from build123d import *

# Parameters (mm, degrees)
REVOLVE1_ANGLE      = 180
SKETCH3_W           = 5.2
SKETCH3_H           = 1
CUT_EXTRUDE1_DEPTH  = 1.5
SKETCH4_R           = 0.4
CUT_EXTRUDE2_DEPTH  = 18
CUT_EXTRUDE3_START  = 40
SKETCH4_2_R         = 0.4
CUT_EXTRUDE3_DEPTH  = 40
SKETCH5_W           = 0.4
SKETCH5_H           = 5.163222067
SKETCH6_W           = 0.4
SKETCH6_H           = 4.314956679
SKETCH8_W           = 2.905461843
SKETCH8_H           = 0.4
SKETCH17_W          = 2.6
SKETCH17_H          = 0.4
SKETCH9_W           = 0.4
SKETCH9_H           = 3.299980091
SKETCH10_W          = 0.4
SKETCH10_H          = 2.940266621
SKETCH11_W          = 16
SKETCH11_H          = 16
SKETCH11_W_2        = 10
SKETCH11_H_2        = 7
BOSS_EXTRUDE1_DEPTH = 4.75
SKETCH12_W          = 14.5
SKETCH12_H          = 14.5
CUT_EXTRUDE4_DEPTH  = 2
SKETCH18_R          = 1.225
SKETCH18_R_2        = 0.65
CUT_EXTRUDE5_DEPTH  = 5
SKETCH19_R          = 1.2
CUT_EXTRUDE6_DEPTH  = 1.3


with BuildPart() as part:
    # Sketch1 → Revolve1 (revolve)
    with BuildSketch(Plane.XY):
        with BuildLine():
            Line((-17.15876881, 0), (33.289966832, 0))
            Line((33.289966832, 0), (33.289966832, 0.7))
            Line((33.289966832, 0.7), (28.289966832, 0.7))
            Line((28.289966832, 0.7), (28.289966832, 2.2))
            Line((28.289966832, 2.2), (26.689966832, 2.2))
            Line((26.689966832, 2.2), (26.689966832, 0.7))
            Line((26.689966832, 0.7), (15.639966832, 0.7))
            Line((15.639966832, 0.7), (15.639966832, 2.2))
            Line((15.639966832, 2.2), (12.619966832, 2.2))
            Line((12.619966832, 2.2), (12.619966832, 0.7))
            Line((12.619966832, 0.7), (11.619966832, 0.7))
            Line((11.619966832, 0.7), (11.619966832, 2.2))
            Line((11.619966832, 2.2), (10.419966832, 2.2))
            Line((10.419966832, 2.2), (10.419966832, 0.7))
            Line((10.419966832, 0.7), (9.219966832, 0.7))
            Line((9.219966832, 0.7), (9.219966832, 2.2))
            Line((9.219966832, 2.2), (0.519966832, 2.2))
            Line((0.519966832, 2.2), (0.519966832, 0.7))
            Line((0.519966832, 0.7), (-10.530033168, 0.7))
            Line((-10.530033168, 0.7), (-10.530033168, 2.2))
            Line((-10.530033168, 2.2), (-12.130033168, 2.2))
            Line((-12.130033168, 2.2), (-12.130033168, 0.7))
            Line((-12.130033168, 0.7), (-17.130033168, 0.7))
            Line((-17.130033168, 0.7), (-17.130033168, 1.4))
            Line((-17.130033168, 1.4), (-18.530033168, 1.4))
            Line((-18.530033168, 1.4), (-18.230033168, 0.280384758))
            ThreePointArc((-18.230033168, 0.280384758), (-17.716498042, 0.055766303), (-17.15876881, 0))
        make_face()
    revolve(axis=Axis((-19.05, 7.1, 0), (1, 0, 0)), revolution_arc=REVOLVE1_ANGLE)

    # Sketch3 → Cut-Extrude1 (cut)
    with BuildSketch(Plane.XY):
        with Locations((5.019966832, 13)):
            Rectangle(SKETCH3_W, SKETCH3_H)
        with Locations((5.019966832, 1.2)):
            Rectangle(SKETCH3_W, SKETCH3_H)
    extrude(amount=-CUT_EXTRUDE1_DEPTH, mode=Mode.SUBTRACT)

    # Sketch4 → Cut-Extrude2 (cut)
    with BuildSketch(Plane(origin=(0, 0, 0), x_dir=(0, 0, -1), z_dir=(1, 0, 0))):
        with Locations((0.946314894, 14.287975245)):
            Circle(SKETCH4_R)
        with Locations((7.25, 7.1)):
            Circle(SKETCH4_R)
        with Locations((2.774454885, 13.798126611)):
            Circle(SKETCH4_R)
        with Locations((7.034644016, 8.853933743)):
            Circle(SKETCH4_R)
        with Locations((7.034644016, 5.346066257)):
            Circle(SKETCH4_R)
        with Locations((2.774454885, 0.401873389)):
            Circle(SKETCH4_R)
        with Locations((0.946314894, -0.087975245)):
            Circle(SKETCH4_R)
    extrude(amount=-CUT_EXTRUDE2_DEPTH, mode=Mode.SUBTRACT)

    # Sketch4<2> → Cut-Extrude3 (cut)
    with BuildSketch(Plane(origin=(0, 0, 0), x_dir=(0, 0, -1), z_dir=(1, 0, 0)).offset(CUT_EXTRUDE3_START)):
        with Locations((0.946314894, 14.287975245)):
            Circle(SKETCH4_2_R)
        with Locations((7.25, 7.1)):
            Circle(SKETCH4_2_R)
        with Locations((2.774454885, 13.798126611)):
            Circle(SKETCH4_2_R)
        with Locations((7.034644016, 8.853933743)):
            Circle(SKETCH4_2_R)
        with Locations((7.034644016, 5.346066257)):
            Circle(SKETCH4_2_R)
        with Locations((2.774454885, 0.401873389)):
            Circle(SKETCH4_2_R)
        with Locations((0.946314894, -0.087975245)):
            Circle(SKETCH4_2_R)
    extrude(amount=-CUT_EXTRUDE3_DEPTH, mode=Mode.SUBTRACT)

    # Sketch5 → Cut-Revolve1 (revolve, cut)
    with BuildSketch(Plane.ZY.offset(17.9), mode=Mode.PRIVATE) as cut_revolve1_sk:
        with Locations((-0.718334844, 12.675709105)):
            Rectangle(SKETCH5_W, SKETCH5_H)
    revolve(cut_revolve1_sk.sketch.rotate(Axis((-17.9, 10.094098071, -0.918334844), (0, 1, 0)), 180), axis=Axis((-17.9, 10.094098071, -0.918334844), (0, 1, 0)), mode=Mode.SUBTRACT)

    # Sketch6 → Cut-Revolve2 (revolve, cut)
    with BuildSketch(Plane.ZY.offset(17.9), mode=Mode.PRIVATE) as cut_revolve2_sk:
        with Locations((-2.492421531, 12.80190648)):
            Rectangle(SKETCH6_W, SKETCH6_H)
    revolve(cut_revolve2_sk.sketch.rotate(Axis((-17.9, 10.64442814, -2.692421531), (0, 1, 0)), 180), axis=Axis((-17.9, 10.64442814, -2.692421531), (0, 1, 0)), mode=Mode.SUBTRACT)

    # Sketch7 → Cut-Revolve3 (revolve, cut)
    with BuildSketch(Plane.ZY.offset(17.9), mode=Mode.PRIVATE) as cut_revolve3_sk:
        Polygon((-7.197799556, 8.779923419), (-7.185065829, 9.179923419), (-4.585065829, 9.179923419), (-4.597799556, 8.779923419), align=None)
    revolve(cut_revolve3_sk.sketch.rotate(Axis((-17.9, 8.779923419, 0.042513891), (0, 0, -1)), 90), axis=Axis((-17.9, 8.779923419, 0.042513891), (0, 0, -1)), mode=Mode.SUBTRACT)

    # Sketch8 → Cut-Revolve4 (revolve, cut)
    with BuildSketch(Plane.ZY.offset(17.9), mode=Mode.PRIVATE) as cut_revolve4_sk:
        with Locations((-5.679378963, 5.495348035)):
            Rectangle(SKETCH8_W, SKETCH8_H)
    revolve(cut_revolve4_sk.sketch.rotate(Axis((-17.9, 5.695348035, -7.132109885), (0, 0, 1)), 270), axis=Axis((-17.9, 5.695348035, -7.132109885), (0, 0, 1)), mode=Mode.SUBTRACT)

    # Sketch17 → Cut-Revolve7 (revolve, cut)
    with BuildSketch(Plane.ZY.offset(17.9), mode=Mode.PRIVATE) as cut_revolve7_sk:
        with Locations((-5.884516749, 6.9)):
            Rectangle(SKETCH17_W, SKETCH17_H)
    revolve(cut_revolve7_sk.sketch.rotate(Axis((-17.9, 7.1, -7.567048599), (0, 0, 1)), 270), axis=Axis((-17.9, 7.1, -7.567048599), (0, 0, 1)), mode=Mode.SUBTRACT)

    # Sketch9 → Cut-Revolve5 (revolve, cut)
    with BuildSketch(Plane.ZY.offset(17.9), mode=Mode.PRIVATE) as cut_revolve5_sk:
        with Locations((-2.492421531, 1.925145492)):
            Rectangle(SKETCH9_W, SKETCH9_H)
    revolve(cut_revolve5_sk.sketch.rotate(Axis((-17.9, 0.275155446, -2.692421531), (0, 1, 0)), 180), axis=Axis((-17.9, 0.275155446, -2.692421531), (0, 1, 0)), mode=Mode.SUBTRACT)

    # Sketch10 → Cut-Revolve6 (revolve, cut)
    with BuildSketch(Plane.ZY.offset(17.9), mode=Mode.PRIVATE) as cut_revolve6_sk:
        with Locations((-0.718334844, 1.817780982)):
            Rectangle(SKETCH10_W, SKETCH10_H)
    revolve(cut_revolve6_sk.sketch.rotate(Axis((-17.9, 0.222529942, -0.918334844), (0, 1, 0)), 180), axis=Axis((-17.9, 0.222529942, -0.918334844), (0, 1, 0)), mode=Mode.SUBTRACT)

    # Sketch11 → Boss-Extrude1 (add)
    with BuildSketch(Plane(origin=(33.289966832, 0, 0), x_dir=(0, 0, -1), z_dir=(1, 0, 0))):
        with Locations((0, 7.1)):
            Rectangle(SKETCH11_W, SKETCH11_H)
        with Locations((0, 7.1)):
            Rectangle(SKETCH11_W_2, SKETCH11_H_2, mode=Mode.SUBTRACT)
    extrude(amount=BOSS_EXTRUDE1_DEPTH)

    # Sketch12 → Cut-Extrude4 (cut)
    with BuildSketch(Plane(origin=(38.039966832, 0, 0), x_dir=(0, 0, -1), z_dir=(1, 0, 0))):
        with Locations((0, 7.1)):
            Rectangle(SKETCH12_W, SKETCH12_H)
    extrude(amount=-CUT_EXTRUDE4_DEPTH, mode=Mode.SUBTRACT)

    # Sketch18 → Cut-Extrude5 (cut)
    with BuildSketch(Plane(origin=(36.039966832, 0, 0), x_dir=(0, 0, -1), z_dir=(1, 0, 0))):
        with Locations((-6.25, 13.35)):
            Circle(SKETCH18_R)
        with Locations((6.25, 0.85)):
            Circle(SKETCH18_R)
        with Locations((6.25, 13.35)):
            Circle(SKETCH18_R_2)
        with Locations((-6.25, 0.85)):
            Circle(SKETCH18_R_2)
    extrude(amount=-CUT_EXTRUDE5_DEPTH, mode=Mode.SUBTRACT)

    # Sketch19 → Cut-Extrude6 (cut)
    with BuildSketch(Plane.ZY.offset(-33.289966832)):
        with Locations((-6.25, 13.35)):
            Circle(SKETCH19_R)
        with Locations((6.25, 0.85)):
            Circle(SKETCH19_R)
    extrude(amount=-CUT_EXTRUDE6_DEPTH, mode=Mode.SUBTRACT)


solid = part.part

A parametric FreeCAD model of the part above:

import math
import FreeCAD as App
import Part
import Sketcher
Q = App.Units.Quantity

doc = App.newDocument("Part")
body = doc.addObject("PartDesign::Body", "Body")

sketch1 = body.newObject("Sketcher::SketchObject", "Sketch")
sketch1.AttachmentSupport = (doc.getObject("XY_Plane"), [""])
sketch1.MapMode = "FlatFace"
sketch1.addGeometry([
    Part.LineSegment(App.Vector(-17.2, 0, 0), App.Vector(33.3, 0, 0)),
    Part.LineSegment(App.Vector(33.3, 0, 0), App.Vector(33.3, 0.7, 0)),
    Part.LineSegment(App.Vector(33.3, 0.7, 0), App.Vector(28.3, 0.7, 0)),
    Part.LineSegment(App.Vector(28.3, 0.7, 0), App.Vector(28.3, 2.2, 0)),
    Part.LineSegment(App.Vector(28.3, 2.2, 0), App.Vector(26.7, 2.2, 0)),
    Part.LineSegment(App.Vector(26.7, 2.2, 0), App.Vector(26.7, 0.7, 0)),
    Part.LineSegment(App.Vector(26.7, 0.7, 0), App.Vector(15.6, 0.7, 0)),
    Part.LineSegment(App.Vector(15.6, 0.7, 0), App.Vector(15.6, 2.2, 0)),
    Part.LineSegment(App.Vector(15.6, 2.2, 0), App.Vector(12.6, 2.2, 0)),
    Part.LineSegment(App.Vector(12.6, 2.2, 0), App.Vector(12.6, 0.7, 0)),
    Part.LineSegment(App.Vector(12.6, 0.7, 0), App.Vector(11.6, 0.7, 0)),
    Part.LineSegment(App.Vector(11.6, 0.7, 0), App.Vector(11.6, 2.2, 0)),
    Part.LineSegment(App.Vector(11.6, 2.2, 0), App.Vector(10.4, 2.2, 0)),
    Part.LineSegment(App.Vector(10.4, 2.2, 0), App.Vector(10.4, 0.7, 0)),
    Part.LineSegment(App.Vector(10.4, 0.7, 0), App.Vector(9.2, 0.7, 0)),
    Part.LineSegment(App.Vector(9.2, 0.7, 0), App.Vector(9.2, 2.2, 0)),
    Part.LineSegment(App.Vector(9.2, 2.2, 0), App.Vector(0.5, 2.2, 0)),
    Part.LineSegment(App.Vector(0.5, 2.2, 0), App.Vector(0.5, 0.7, 0)),
    Part.LineSegment(App.Vector(0.5, 0.7, 0), App.Vector(-10.5, 0.7, 0)),
    Part.LineSegment(App.Vector(-10.5, 0.7, 0), App.Vector(-10.5, 2.2, 0)),
    Part.LineSegment(App.Vector(-10.5, 2.2, 0), App.Vector(-12.1, 2.2, 0)),
    Part.LineSegment(App.Vector(-12.1, 2.2, 0), App.Vector(-12.1, 0.7, 0)),
    Part.LineSegment(App.Vector(-12.1, 0.7, 0), App.Vector(-17.1, 0.7, 0)),
    Part.LineSegment(App.Vector(-17.1, 0.7, 0), App.Vector(-17.1, 1.4, 0)),
    Part.LineSegment(App.Vector(-17.1, 1.4, 0), App.Vector(-18.5, 1.4, 0)),
    Part.LineSegment(App.Vector(-18.5, 1.4, 0), App.Vector(-18.2, 0.3, 0)),
    Part.ArcOfCircle(Part.Circle(App.Vector(-17.3, 1.8, 0), App.Vector(0, 0, 1), 1.8), math.radians(-123), math.radians(-87)),
], False)
sketch1.addGeometry(Part.LineSegment(App.Vector(-18.5, 7.1, 0), App.Vector(33.3, 7.1, 0)), True)
sketch1.addConstraint([
    Sketcher.Constraint("Coincident", 0, 2, 1, 1),
    Sketcher.Constraint("Coincident", 1, 2, 2, 1),
    Sketcher.Constraint("Coincident", 2, 2, 3, 1),
    Sketcher.Constraint("Coincident", 3, 2, 4, 1),
    Sketcher.Constraint("Coincident", 4, 2, 5, 1),
    Sketcher.Constraint("Coincident", 5, 2, 6, 1),
    Sketcher.Constraint("Coincident", 6, 2, 7, 1),
    Sketcher.Constraint("Coincident", 7, 2, 8, 1),
    Sketcher.Constraint("Coincident", 8, 2, 9, 1),
    Sketcher.Constraint("Coincident", 9, 2, 10, 1),
    Sketcher.Constraint("Coincident", 10, 2, 11, 1),
    Sketcher.Constraint("Coincident", 11, 2, 12, 1),
    Sketcher.Constraint("Coincident", 12, 2, 13, 1),
    Sketcher.Constraint("Coincident", 13, 2, 14, 1),
    Sketcher.Constraint("Coincident", 14, 2, 15, 1),
    Sketcher.Constraint("Coincident", 15, 2, 16, 1),
    Sketcher.Constraint("Coincident", 16, 2, 17, 1),
    Sketcher.Constraint("Coincident", 17, 2, 18, 1),
    Sketcher.Constraint("Coincident", 18, 2, 19, 1),
    Sketcher.Constraint("Coincident", 19, 2, 20, 1),
    Sketcher.Constraint("Coincident", 20, 2, 21, 1),
    Sketcher.Constraint("Coincident", 21, 2, 22, 1),
    Sketcher.Constraint("Coincident", 22, 2, 23, 1),
    Sketcher.Constraint("Coincident", 23, 2, 24, 1),
    Sketcher.Constraint("Coincident", 24, 2, 25, 1),
    Sketcher.Constraint("Coincident", 25, 2, 26, 1),
    Sketcher.Constraint("Coincident", 26, 2, 0, 1),
    Sketcher.Constraint("Horizontal", 0),
    Sketcher.Constraint("Vertical", 1),
    Sketcher.Constraint("Horizontal", 2),
    Sketcher.Constraint("Vertical", 3),
    Sketcher.Constraint("Horizontal", 4),
    Sketcher.Constraint("Vertical", 5),
    Sketcher.Constraint("Horizontal", 6),
    Sketcher.Constraint("Vertical", 7),
    Sketcher.Constraint("Horizontal", 8),
    Sketcher.Constraint("Vertical", 9),
    Sketcher.Constraint("Horizontal", 10),
    Sketcher.Constraint("Vertical", 11),
    Sketcher.Constraint("Horizontal", 12),
    Sketcher.Constraint("Vertical", 13),
    Sketcher.Constraint("Horizontal", 14),
    Sketcher.Constraint("Vertical", 15),
    Sketcher.Constraint("Horizontal", 16),
    Sketcher.Constraint("Vertical", 17),
    Sketcher.Constraint("Horizontal", 18),
    Sketcher.Constraint("Vertical", 19),
    Sketcher.Constraint("Horizontal", 20),
    Sketcher.Constraint("Vertical", 21),
    Sketcher.Constraint("Horizontal", 22),
    Sketcher.Constraint("Vertical", 23),
    Sketcher.Constraint("Horizontal", 24),
    Sketcher.Constraint("Horizontal", 27),
    Sketcher.Constraint("PointOnObject", 0, 2, -1),
    Sketcher.Constraint("Horizontal", 2, 2, 5, 2),
    Sketcher.Constraint("Horizontal", 4, 2, 7, 2),
    Sketcher.Constraint("Horizontal", 6, 2, 9, 2),
    Sketcher.Constraint("Horizontal", 8, 2, 11, 2),
    Sketcher.Constraint("Horizontal", 10, 2, 13, 2),
    Sketcher.Constraint("Horizontal", 12, 2, 15, 2),
    Sketcher.Constraint("Horizontal", 14, 2, 17, 2),
    Sketcher.Constraint("Horizontal", 16, 2, 19, 2),
    Sketcher.Constraint("Horizontal", 18, 2, 21, 2),
    Sketcher.Constraint("Vertical", 24, 2, 27, 1),
    Sketcher.Constraint("Vertical", 1, 2, 27, 2),
    Sketcher.Constraint("Equal", 12, 14),
    Sketcher.Constraint("Equal", 6, 18),
    Sketcher.Constraint("Equal", 4, 20),
    Sketcher.Constraint("Equal", 2, 22),
    Sketcher.Constraint("Equal", 1, 23),
    Sketcher.Constraint("Radius", 26, 1.8),
    Sketcher.Constraint("DistanceX", 2, 2, 2, 1, 5.0),
    Sketcher.Constraint("DistanceX", 10, 2, 10, 1, 1.0),
    Sketcher.Constraint("Angle", 25, Q("-75 deg")),
    Sketcher.Constraint("DistanceX", 4, 2, 4, 1, 1.6),
    Sketcher.Constraint("DistanceX", 12, 2, 12, 1, 1.2),
    Sketcher.Constraint("DistanceX", 16, 2, 16, 1, 8.7),
    Sketcher.Constraint("DistanceX", 24, 2, 24, 1, 1.4),
    Sketcher.Constraint("DistanceY", 1, 1, 1, 2, 0.7),
    Sketcher.Constraint("DistanceY", 3, 1, 3, 2, 1.5),
    Sketcher.Constraint("DistanceX", 6, 2, 6, 1, 11.05),
    Sketcher.Constraint("DistanceX", 8, 2, 8, 1, 3.02),
    Sketcher.Constraint("DistanceY", -1, 1, 27, 1, 7.1),
    Sketcher.Constraint("DistanceX", 24, 2, 25, 2, 0.3),
    Sketcher.Constraint("DistanceX", 26, 3, 0, 2, 50.550699),
    Sketcher.Constraint("DistanceX", 26, 3, -1, 1, 17.260732),
])
revolution = body.newObject("PartDesign::Revolution", "Revolution")
revolution.Profile = sketch1
revolution.ReferenceAxis = (sketch1, ["Axis0"])
revolution.Angle = 180

sketch2 = body.newObject("Sketcher::SketchObject", "Sketch001")
sketch2.AttachmentSupport = (doc.getObject("XY_Plane"), [""])
sketch2.MapMode = "FlatFace"
sketch2.addGeometry([
    Part.LineSegment(App.Vector(2.4, 13.5, 0), App.Vector(2.4, 12.5, 0)),
    Part.LineSegment(App.Vector(2.4, 12.5, 0), App.Vector(7.6, 12.5, 0)),
    Part.LineSegment(App.Vector(7.6, 12.5, 0), App.Vector(7.6, 13.5, 0)),
    Part.LineSegment(App.Vector(7.6, 13.5, 0), App.Vector(2.4, 13.5, 0)),
    Part.LineSegment(App.Vector(2.4, 1.7, 0), App.Vector(2.4, 0.7, 0)),
    Part.LineSegment(App.Vector(2.4, 0.7, 0), App.Vector(7.6, 0.7, 0)),
    Part.LineSegment(App.Vector(7.6, 0.7, 0), App.Vector(7.6, 1.7, 0)),
    Part.LineSegment(App.Vector(7.6, 1.7, 0), App.Vector(2.4, 1.7, 0)),
], False)
sketch2.addConstraint([
    Sketcher.Constraint("Coincident", 0, 2, 1, 1),
    Sketcher.Constraint("Coincident", 1, 2, 2, 1),
    Sketcher.Constraint("Coincident", 2, 2, 3, 1),
    Sketcher.Constraint("Coincident", 3, 2, 0, 1),
    Sketcher.Constraint("Coincident", 4, 2, 5, 1),
    Sketcher.Constraint("Coincident", 5, 2, 6, 1),
    Sketcher.Constraint("Coincident", 6, 2, 7, 1),
    Sketcher.Constraint("Coincident", 7, 2, 4, 1),
    Sketcher.Constraint("Vertical", 0),
    Sketcher.Constraint("Horizontal", 1),
    Sketcher.Constraint("Vertical", 2),
    Sketcher.Constraint("Horizontal", 3),
    Sketcher.Constraint("Vertical", 4),
    Sketcher.Constraint("Horizontal", 5),
    Sketcher.Constraint("Vertical", 6),
    Sketcher.Constraint("Horizontal", 7),
    Sketcher.Constraint("Vertical", 3, 2, 4, 2),
    Sketcher.Constraint("Vertical", 2, 2, 5, 2),
    Sketcher.Constraint("Equal", 2, 4),
    Sketcher.Constraint("DistanceY", 0, 2, 0, 1, 1.0),
    Sketcher.Constraint("DistanceX", 1, 1, 1, 2, 5.2),
    Sketcher.Constraint("DistanceY", -1, 1, 0, 2, 12.5),
    Sketcher.Constraint("DistanceY", -1, 1, 4, 2, 0.7),
    Sketcher.Constraint("DistanceX", -1, 1, 0, 2, 2.419967),
])
pocket1 = body.newObject("PartDesign::Pocket", "Pocket")
pocket1.Profile = sketch2
pocket1.Length = 1.5

sketch3 = body.newObject("Sketcher::SketchObject", "Sketch002")
sketch3.AttachmentSupport = (doc.getObject("YZ_Plane"), [""])
sketch3.MapMode = "FlatFace"
sketch3.addGeometry([
    Part.Circle(App.Vector(14.29, -0.95, 0), App.Vector(0, 0, 1), 0.4),
    Part.Circle(App.Vector(7.1, -7.25, 0), App.Vector(0, 0, 1), 0.4),
    Part.Circle(App.Vector(13.8, -2.77, 0), App.Vector(0, 0, 1), 0.4),
    Part.Circle(App.Vector(8.85, -7.03, 0), App.Vector(0, 0, 1), 0.4),
    Part.Circle(App.Vector(5.35, -7.03, 0), App.Vector(0, 0, 1), 0.4),
    Part.Circle(App.Vector(0.4, -2.77, 0), App.Vector(0, 0, 1), 0.4),
    Part.Circle(App.Vector(-0.09, -0.95, 0), App.Vector(0, 0, 1), 0.4),
], False)
sketch3.addConstraint([
    Sketcher.Constraint("Equal", 0, 1),
    Sketcher.Constraint("Equal", 1, 2),
    Sketcher.Constraint("Equal", 2, 3),
    Sketcher.Constraint("Equal", 3, 4),
    Sketcher.Constraint("Equal", 4, 5),
    Sketcher.Constraint("Equal", 5, 6),
    Sketcher.Constraint("Horizontal", 3, 3, 4, 3),
    Sketcher.Constraint("Horizontal", 2, 3, 5, 3),
    Sketcher.Constraint("Horizontal", 0, 3, 6, 3),
    Sketcher.Constraint("Diameter", 0, 0.8),
    Sketcher.Constraint("DistanceX", -1, 1, 1, 3, 7.1),
    Sketcher.Constraint("DistanceY", 1, 3, -1, 1, 7.25),
    Sketcher.Constraint("DistanceX", 5, 3, 0, 3, 13.886102),
    Sketcher.Constraint("DistanceX", 6, 3, 2, 3, 13.886102),
    Sketcher.Constraint("DistanceX", 2, 3, 0, 3, 0.489849),
    Sketcher.Constraint("DistanceY", 2, 3, 0, 3, 1.82814),
    Sketcher.Constraint("DistanceY", 3, 3, 2, 3, 4.260189),
    Sketcher.Constraint("DistanceX", 3, 3, 0, 3, 5.434042),
    Sketcher.Constraint("DistanceX", 4, 3, 2, 3, 8.45206),
    Sketcher.Constraint("DistanceX", -1, 1, 0, 3, 14.287975),
    Sketcher.Constraint("DistanceY", 0, 3, -1, 1, 0.946315),
])
pocket2 = body.newObject("PartDesign::Pocket", "Pocket001")
pocket2.Profile = sketch3
pocket2.Length = 18

sketch4 = body.newObject("Sketcher::SketchObject", "Sketch003")
sketch4.AttachmentSupport = (doc.getObject("YZ_Plane"), [""])
sketch4.MapMode = "FlatFace"
sketch4.AttachmentOffset = App.Placement(App.Vector(0, 0, 40), App.Rotation())
sketch4.addGeometry([
    Part.Circle(App.Vector(14.29, -0.95, 0), App.Vector(0, 0, 1), 0.4),
    Part.Circle(App.Vector(7.1, -7.25, 0), App.Vector(0, 0, 1), 0.4),
    Part.Circle(App.Vector(13.8, -2.77, 0), App.Vector(0, 0, 1), 0.4),
    Part.Circle(App.Vector(8.85, -7.03, 0), App.Vector(0, 0, 1), 0.4),
    Part.Circle(App.Vector(5.35, -7.03, 0), App.Vector(0, 0, 1), 0.4),
    Part.Circle(App.Vector(0.4, -2.77, 0), App.Vector(0, 0, 1), 0.4),
    Part.Circle(App.Vector(-0.09, -0.95, 0), App.Vector(0, 0, 1), 0.4),
], False)
sketch4.addConstraint([
    Sketcher.Constraint("Equal", 0, 1),
    Sketcher.Constraint("Equal", 1, 2),
    Sketcher.Constraint("Equal", 2, 3),
    Sketcher.Constraint("Equal", 3, 4),
    Sketcher.Constraint("Equal", 4, 5),
    Sketcher.Constraint("Equal", 5, 6),
    Sketcher.Constraint("Horizontal", 3, 3, 4, 3),
    Sketcher.Constraint("Horizontal", 2, 3, 5, 3),
    Sketcher.Constraint("Horizontal", 0, 3, 6, 3),
    Sketcher.Constraint("Diameter", 0, 0.8),
    Sketcher.Constraint("DistanceX", -1, 1, 1, 3, 7.1),
    Sketcher.Constraint("DistanceY", 1, 3, -1, 1, 7.25),
    Sketcher.Constraint("DistanceX", 5, 3, 0, 3, 13.886102),
    Sketcher.Constraint("DistanceX", 6, 3, 2, 3, 13.886102),
    Sketcher.Constraint("DistanceX", 2, 3, 0, 3, 0.489849),
    Sketcher.Constraint("DistanceY", 2, 3, 0, 3, 1.82814),
    Sketcher.Constraint("DistanceY", 3, 3, 2, 3, 4.260189),
    Sketcher.Constraint("DistanceX", 3, 3, 0, 3, 5.434042),
    Sketcher.Constraint("DistanceX", 4, 3, 2, 3, 8.45206),
    Sketcher.Constraint("DistanceX", -1, 1, 0, 3, 14.287975),
    Sketcher.Constraint("DistanceY", 0, 3, -1, 1, 0.946315),
])
pocket3 = body.newObject("PartDesign::Pocket", "Pocket002")
pocket3.Profile = sketch4
pocket3.Length = 40

sketch5 = body.newObject("Sketcher::SketchObject", "Sketch004")
sketch5.AttachmentSupport = (doc.getObject("YZ_Plane"), [""])
sketch5.MapMode = "FlatFace"
sketch5.AttachmentOffset = App.Placement(App.Vector(0, 0, -17.9), App.Rotation())
sketch5.addGeometry([
    Part.LineSegment(App.Vector(15.26, -0.92, 0), App.Vector(10.09, -0.92, 0)),
    Part.LineSegment(App.Vector(10.09, -0.92, 0), App.Vector(10.09, -0.52, 0)),
    Part.LineSegment(App.Vector(10.09, -0.52, 0), App.Vector(15.26, -0.52, 0)),
    Part.LineSegment(App.Vector(15.26, -0.52, 0), App.Vector(15.26, -0.92, 0)),
], False)
sketch5.addGeometry(Part.LineSegment(App.Vector(10.09, -0.92, 0), App.Vector(15.26, -0.92, 0)), True)
sketch5.addConstraint([
    Sketcher.Constraint("Coincident", 0, 2, 1, 1),
    Sketcher.Constraint("Coincident", 1, 2, 2, 1),
    Sketcher.Constraint("Coincident", 2, 2, 3, 1),
    Sketcher.Constraint("Coincident", 3, 2, 0, 1),
    Sketcher.Constraint("Horizontal", 0),
    Sketcher.Constraint("Vertical", 1),
    Sketcher.Constraint("Horizontal", 2),
    Sketcher.Constraint("Vertical", 3),
    Sketcher.Constraint("Horizontal", 4),
    Sketcher.Constraint("Coincident", 4, 1, 0, 2),
    Sketcher.Constraint("Vertical", 2, 2, 4, 2),
    Sketcher.Constraint("DistanceY", 1, 1, 1, 2, 0.4),
    Sketcher.Constraint("DistanceX", -1, 1, 0, 2, 10.094098),
    Sketcher.Constraint("DistanceX", 0, 2, 0, 1, 5.163222),
    Sketcher.Constraint("DistanceY", 0, 2, -1, 1, 0.918335),
])
groove = body.newObject("PartDesign::Groove", "Groove")
groove.Profile = sketch5
groove.ReferenceAxis = (sketch5, ["Axis0"])
groove.Angle = 360

sketch6 = body.newObject("Sketcher::SketchObject", "Sketch005")
sketch6.AttachmentSupport = (doc.getObject("YZ_Plane"), [""])
sketch6.MapMode = "FlatFace"
sketch6.AttachmentOffset = App.Placement(App.Vector(0, 0, -17.9), App.Rotation())
sketch6.addGeometry([
    Part.LineSegment(App.Vector(14.96, -2.69, 0), App.Vector(10.64, -2.69, 0)),
    Part.LineSegment(App.Vector(10.64, -2.69, 0), App.Vector(10.64, -2.29, 0)),
    Part.LineSegment(App.Vector(10.64, -2.29, 0), App.Vector(14.96, -2.29, 0)),
    Part.LineSegment(App.Vector(14.96, -2.29, 0), App.Vector(14.96, -2.69, 0)),
], False)
sketch6.addGeometry(Part.LineSegment(App.Vector(10.64, -2.69, 0), App.Vector(14.96, -2.69, 0)), True)
sketch6.addConstraint([
    Sketcher.Constraint("Coincident", 0, 2, 1, 1),
    Sketcher.Constraint("Coincident", 1, 2, 2, 1),
    Sketcher.Constraint("Coincident", 2, 2, 3, 1),
    Sketcher.Constraint("Coincident", 3, 2, 0, 1),
    Sketcher.Constraint("Horizontal", 0),
    Sketcher.Constraint("Vertical", 1),
    Sketcher.Constraint("Horizontal", 2),
    Sketcher.Constraint("Vertical", 3),
    Sketcher.Constraint("Horizontal", 4),
    Sketcher.Constraint("Coincident", 4, 1, 0, 2),
    Sketcher.Constraint("Vertical", 2, 2, 4, 2),
    Sketcher.Constraint("DistanceY", 1, 1, 1, 2, 0.4),
    Sketcher.Constraint("DistanceX", 0, 2, 0, 1, 4.314957),
    Sketcher.Constraint("DistanceX", -1, 1, 0, 2, 10.644428),
    Sketcher.Constraint("DistanceY", 0, 2, -1, 1, 2.692422),
])
groove2 = body.newObject("PartDesign::Groove", "Groove001")
groove2.Profile = sketch6
groove2.ReferenceAxis = (sketch6, ["Axis0"])
groove2.Angle = 360

sketch7 = body.newObject("Sketcher::SketchObject", "Sketch006")
sketch7.AttachmentSupport = (doc.getObject("YZ_Plane"), [""])
sketch7.MapMode = "FlatFace"
sketch7.AttachmentOffset = App.Placement(App.Vector(0, 0, -17.9), App.Rotation())
sketch7.addGeometry([
    Part.LineSegment(App.Vector(9.18, -7.19, 0), App.Vector(8.78, -7.2, 0)),
    Part.LineSegment(App.Vector(8.78, -7.2, 0), App.Vector(8.78, -4.6, 0)),
    Part.LineSegment(App.Vector(8.78, -4.6, 0), App.Vector(9.18, -4.59, 0)),
    Part.LineSegment(App.Vector(9.18, -4.59, 0), App.Vector(9.18, -7.19, 0)),
], False)
sketch7.addGeometry(Part.LineSegment(App.Vector(8.78, -4.59, 0), App.Vector(8.78, -7.2, 0)), True)
sketch7.addConstraint([
    Sketcher.Constraint("Coincident", 0, 2, 1, 1),
    Sketcher.Constraint("Coincident", 1, 2, 2, 1),
    Sketcher.Constraint("Coincident", 2, 2, 3, 1),
    Sketcher.Constraint("Coincident", 3, 2, 0, 1),
    Sketcher.Constraint("Vertical", 1),
    Sketcher.Constraint("Vertical", 3),
    Sketcher.Constraint("Vertical", 4),
    Sketcher.Constraint("Coincident", 4, 2, 0, 2),
    Sketcher.Constraint("Parallel", 0, 2),
    Sketcher.Constraint("Horizontal", 2, 2, 4, 1),
    Sketcher.Constraint("DistanceY", 1, 1, 1, 2, 2.6),
    Sketcher.Constraint("DistanceX", 1, 2, 2, 2, 0.4),
    Sketcher.Constraint("DistanceY", 0, 2, -1, 1, 7.1978),
    Sketcher.Constraint("DistanceY", 4, 2, 4, 1, 2.612734),
    Sketcher.Constraint("DistanceX", -1, 1, 0, 2, 8.779923),
])
groove3 = body.newObject("PartDesign::Groove", "Groove002")
groove3.Profile = sketch7
groove3.ReferenceAxis = (sketch7, ["Axis0"])
groove3.Angle = 360

sketch8 = body.newObject("Sketcher::SketchObject", "Sketch007")
sketch8.AttachmentSupport = (doc.getObject("YZ_Plane"), [""])
sketch8.MapMode = "FlatFace"
sketch8.AttachmentOffset = App.Placement(App.Vector(0, 0, -17.9), App.Rotation())
sketch8.addGeometry([
    Part.LineSegment(App.Vector(5.7, -7.13, 0), App.Vector(5.3, -7.13, 0)),
    Part.LineSegment(App.Vector(5.3, -7.13, 0), App.Vector(5.3, -4.23, 0)),
    Part.LineSegment(App.Vector(5.3, -4.23, 0), App.Vector(5.7, -4.23, 0)),
    Part.LineSegment(App.Vector(5.7, -4.23, 0), App.Vector(5.7, -7.13, 0)),
], False)
sketch8.addGeometry(Part.LineSegment(App.Vector(5.7, -7.13, 0), App.Vector(5.7, -4.23, 0)), True)
sketch8.addConstraint([
    Sketcher.Constraint("Coincident", 0, 2, 1, 1),
    Sketcher.Constraint("Coincident", 1, 2, 2, 1),
    Sketcher.Constraint("Coincident", 2, 2, 3, 1),
    Sketcher.Constraint("Coincident", 3, 2, 0, 1),
    Sketcher.Constraint("Horizontal", 0),
    Sketcher.Constraint("Vertical", 1),
    Sketcher.Constraint("Horizontal", 2),
    Sketcher.Constraint("Vertical", 3),
    Sketcher.Constraint("Vertical", 4),
    Sketcher.Constraint("Coincident", 4, 1, 3, 2),
    Sketcher.Constraint("Horizontal", 1, 2, 4, 2),
    Sketcher.Constraint("DistanceX", 0, 2, 0, 1, 0.4),
    Sketcher.Constraint("DistanceY", 1, 1, 1, 2, 2.905462),
    Sketcher.Constraint("DistanceX", -1, 1, 0, 2, 5.295348),
    Sketcher.Constraint("DistanceY", 0, 2, -1, 1, 7.13211),
])
groove4 = body.newObject("PartDesign::Groove", "Groove003")
groove4.Profile = sketch8
groove4.ReferenceAxis = (sketch8, ["Axis0"])
groove4.Angle = 360

sketch9 = body.newObject("Sketcher::SketchObject", "Sketch008")
sketch9.AttachmentSupport = (doc.getObject("YZ_Plane"), [""])
sketch9.MapMode = "FlatFace"
sketch9.AttachmentOffset = App.Placement(App.Vector(0, 0, -17.9), App.Rotation())
sketch9.addGeometry([
    Part.LineSegment(App.Vector(7.1, -7.18, 0), App.Vector(6.7, -7.18, 0)),
    Part.LineSegment(App.Vector(6.7, -7.18, 0), App.Vector(6.7, -4.58, 0)),
    Part.LineSegment(App.Vector(6.7, -4.58, 0), App.Vector(7.1, -4.58, 0)),
    Part.LineSegment(App.Vector(7.1, -4.58, 0), App.Vector(7.1, -7.18, 0)),
], False)
sketch9.addGeometry(Part.LineSegment(App.Vector(7.1, -7.18, 0), App.Vector(7.1, -4.58, 0)), True)
sketch9.addConstraint([
    Sketcher.Constraint("Coincident", 0, 2, 1, 1),
    Sketcher.Constraint("Coincident", 1, 2, 2, 1),
    Sketcher.Constraint("Coincident", 2, 2, 3, 1),
    Sketcher.Constraint("Coincident", 3, 2, 0, 1),
    Sketcher.Constraint("Horizontal", 0),
    Sketcher.Constraint("Vertical", 1),
    Sketcher.Constraint("Horizontal", 2),
    Sketcher.Constraint("Vertical", 3),
    Sketcher.Constraint("Vertical", 4),
    Sketcher.Constraint("Coincident", 4, 1, 3, 2),
    Sketcher.Constraint("Horizontal", 1, 2, 4, 2),
    Sketcher.Constraint("DistanceX", 0, 2, 0, 1, 0.4),
    Sketcher.Constraint("DistanceY", 1, 1, 1, 2, 2.6),
    Sketcher.Constraint("DistanceX", -1, 1, 0, 2, 6.7),
    Sketcher.Constraint("DistanceY", 0, 2, -1, 1, 7.184517),
])
groove5 = body.newObject("PartDesign::Groove", "Groove004")
groove5.Profile = sketch9
groove5.ReferenceAxis = (sketch9, ["Axis0"])
groove5.Angle = 360

sketch10 = body.newObject("Sketcher::SketchObject", "Sketch009")
sketch10.AttachmentSupport = (doc.getObject("YZ_Plane"), [""])
sketch10.MapMode = "FlatFace"
sketch10.AttachmentOffset = App.Placement(App.Vector(0, 0, -17.9), App.Rotation())
sketch10.addGeometry([
    Part.LineSegment(App.Vector(3.58, -2.69, 0), App.Vector(0.28, -2.69, 0)),
    Part.LineSegment(App.Vector(0.28, -2.69, 0), App.Vector(0.28, -2.29, 0)),
    Part.LineSegment(App.Vector(0.28, -2.29, 0), App.Vector(3.58, -2.29, 0)),
    Part.LineSegment(App.Vector(3.58, -2.29, 0), App.Vector(3.58, -2.69, 0)),
], False)
sketch10.addGeometry(Part.LineSegment(App.Vector(0.28, -2.69, 0), App.Vector(3.58, -2.69, 0)), True)
sketch10.addConstraint([
    Sketcher.Constraint("Coincident", 0, 2, 1, 1),
    Sketcher.Constraint("Coincident", 1, 2, 2, 1),
    Sketcher.Constraint("Coincident", 2, 2, 3, 1),
    Sketcher.Constraint("Coincident", 3, 2, 0, 1),
    Sketcher.Constraint("Horizontal", 0),
    Sketcher.Constraint("Vertical", 1),
    Sketcher.Constraint("Horizontal", 2),
    Sketcher.Constraint("Vertical", 3),
    Sketcher.Constraint("Horizontal", 4),
    Sketcher.Constraint("Coincident", 4, 1, 0, 2),
    Sketcher.Constraint("Vertical", 2, 2, 4, 2),
    Sketcher.Constraint("DistanceY", 1, 1, 1, 2, 0.4),
    Sketcher.Constraint("DistanceX", 0, 2, 0, 1, 3.29998),
    Sketcher.Constraint("DistanceY", 0, 2, -1, 1, 2.692422),
    Sketcher.Constraint("DistanceX", -1, 1, 0, 2, 0.275155),
])
groove6 = body.newObject("PartDesign::Groove", "Groove005")
groove6.Profile = sketch10
groove6.ReferenceAxis = (sketch10, ["Axis0"])
groove6.Angle = 360

sketch11 = body.newObject("Sketcher::SketchObject", "Sketch010")
sketch11.AttachmentSupport = (doc.getObject("YZ_Plane"), [""])
sketch11.MapMode = "FlatFace"
sketch11.AttachmentOffset = App.Placement(App.Vector(0, 0, -17.9), App.Rotation())
sketch11.addGeometry([
    Part.LineSegment(App.Vector(3.29, -0.92, 0), App.Vector(0.35, -0.92, 0)),
    Part.LineSegment(App.Vector(0.35, -0.92, 0), App.Vector(0.35, -0.52, 0)),
    Part.LineSegment(App.Vector(0.35, -0.52, 0), App.Vector(3.29, -0.52, 0)),
    Part.LineSegment(App.Vector(3.29, -0.52, 0), App.Vector(3.29, -0.92, 0)),
], False)
sketch11.addGeometry(Part.LineSegment(App.Vector(0.35, -0.92, 0), App.Vector(3.29, -0.92, 0)), True)
sketch11.addConstraint([
    Sketcher.Constraint("Coincident", 0, 2, 1, 1),
    Sketcher.Constraint("Coincident", 1, 2, 2, 1),
    Sketcher.Constraint("Coincident", 2, 2, 3, 1),
    Sketcher.Constraint("Coincident", 3, 2, 0, 1),
    Sketcher.Constraint("Horizontal", 0),
    Sketcher.Constraint("Vertical", 1),
    Sketcher.Constraint("Horizontal", 2),
    Sketcher.Constraint("Vertical", 3),
    Sketcher.Constraint("Horizontal", 4),
    Sketcher.Constraint("Coincident", 4, 1, 0, 2),
    Sketcher.Constraint("Vertical", 2, 2, 4, 2),
    Sketcher.Constraint("DistanceY", 1, 1, 1, 2, 0.4),
    Sketcher.Constraint("DistanceX", 0, 2, 0, 1, 2.940267),
    Sketcher.Constraint("DistanceX", -1, 1, 0, 2, 0.347648),
    Sketcher.Constraint("DistanceY", 0, 2, -1, 1, 0.918335),
])
groove7 = body.newObject("PartDesign::Groove", "Groove006")
groove7.Profile = sketch11
groove7.ReferenceAxis = (sketch11, ["Axis0"])
groove7.Angle = 360

sketch12 = body.newObject("Sketcher::SketchObject", "Sketch011")
sketch12.AttachmentSupport = (doc.getObject("YZ_Plane"), [""])
sketch12.MapMode = "FlatFace"
sketch12.AttachmentOffset = App.Placement(App.Vector(0, 0, 33.289967), App.Rotation())
sketch12.addGeometry([
    Part.LineSegment(App.Vector(15, 8, 0), App.Vector(-1, 8, 0)),
    Part.LineSegment(App.Vector(-1, 8, 0), App.Vector(-1, -8, 0)),
    Part.LineSegment(App.Vector(-1, -8, 0), App.Vector(15, -8, 0)),
    Part.LineSegment(App.Vector(15, -8, 0), App.Vector(15, 8, 0)),
    Part.LineSegment(App.Vector(4, -5, 0), App.Vector(4, 5, 0)),
    Part.LineSegment(App.Vector(4, 5, 0), App.Vector(11, 5, 0)),
    Part.LineSegment(App.Vector(11, 5, 0), App.Vector(11, -5, 0)),
    Part.LineSegment(App.Vector(11, -5, 0), App.Vector(4, -5, 0)),
], False)
sketch12.addConstraint([
    Sketcher.Constraint("Coincident", 0, 2, 1, 1),
    Sketcher.Constraint("Coincident", 1, 2, 2, 1),
    Sketcher.Constraint("Coincident", 2, 2, 3, 1),
    Sketcher.Constraint("Coincident", 3, 2, 0, 1),
    Sketcher.Constraint("Coincident", 4, 2, 5, 1),
    Sketcher.Constraint("Coincident", 5, 2, 6, 1),
    Sketcher.Constraint("Coincident", 6, 2, 7, 1),
    Sketcher.Constraint("Coincident", 7, 2, 4, 1),
    Sketcher.Constraint("Horizontal", 0),
    Sketcher.Constraint("Vertical", 1),
    Sketcher.Constraint("Horizontal", 2),
    Sketcher.Constraint("Vertical", 3),
    Sketcher.Constraint("Vertical", 4),
    Sketcher.Constraint("Horizontal", 5),
    Sketcher.Constraint("Vertical", 6),
    Sketcher.Constraint("Horizontal", 7),
    Sketcher.Constraint("Equal", 2, 1),
    Sketcher.Constraint("DistanceX", 0, 2, 0, 1, 16.0),
    Sketcher.Constraint("DistanceX", 5, 1, 5, 2, 7.0),
    Sketcher.Constraint("DistanceY", 4, 1, 4, 2, 10.0),
    Sketcher.Constraint("DistanceY", -1, 1, 0, 2, 8.0),
    Sketcher.Constraint("DistanceY", -1, 1, 4, 2, 5.0),
    Sketcher.Constraint("DistanceX", 0, 2, -1, 1, 0.9),
    Sketcher.Constraint("DistanceX", -1, 1, 4, 2, 3.6),
])
pad1 = body.newObject("PartDesign::Pad", "Pad")
pad1.Profile = sketch12
pad1.Length = 4.75

sketch13 = body.newObject("Sketcher::SketchObject", "Sketch012")
sketch13.AttachmentSupport = (doc.getObject("YZ_Plane"), [""])
sketch13.MapMode = "FlatFace"
sketch13.AttachmentOffset = App.Placement(App.Vector(0, 0, 38.039967), App.Rotation())
sketch13.addGeometry([
    Part.LineSegment(App.Vector(14, 7, 0), App.Vector(0, 7, 0)),
    Part.LineSegment(App.Vector(0, 7, 0), App.Vector(0, -7, 0)),
    Part.LineSegment(App.Vector(0, -7, 0), App.Vector(14, -7, 0)),
    Part.LineSegment(App.Vector(14, -7, 0), App.Vector(14, 7, 0)),
], False)
sketch13.addConstraint([
    Sketcher.Constraint("Coincident", 0, 2, 1, 1),
    Sketcher.Constraint("Coincident", 1, 2, 2, 1),
    Sketcher.Constraint("Coincident", 2, 2, 3, 1),
    Sketcher.Constraint("Coincident", 3, 2, 0, 1),
    Sketcher.Constraint("Horizontal", 0),
    Sketcher.Constraint("Vertical", 1),
    Sketcher.Constraint("Horizontal", 2),
    Sketcher.Constraint("Vertical", 3),
    Sketcher.Constraint("Equal", 2, 1),
    Sketcher.Constraint("DistanceX", 0, 2, 0, 1, 14.5),
    Sketcher.Constraint("DistanceX", 0, 2, -1, 1, 0.15),
    Sketcher.Constraint("DistanceY", -1, 1, 0, 2, 7.25),
])
pocket4 = body.newObject("PartDesign::Pocket", "Pocket003")
pocket4.Profile = sketch13
pocket4.Length = 2

sketch14 = body.newObject("Sketcher::SketchObject", "Sketch013")
sketch14.AttachmentSupport = (doc.getObject("YZ_Plane"), [""])
sketch14.MapMode = "FlatFace"
sketch14.AttachmentOffset = App.Placement(App.Vector(0, 0, 36.039967), App.Rotation())
sketch14.addGeometry([
    Part.Circle(App.Vector(13.3, 6.2, 0), App.Vector(0, 0, 1), 1.2),
    Part.Circle(App.Vector(0.8, -6.2, 0), App.Vector(0, 0, 1), 1.2),
    Part.Circle(App.Vector(13.3, -6.2, 0), App.Vector(0, 0, 1), 0.7),
    Part.Circle(App.Vector(0.8, 6.2, 0), App.Vector(0, 0, 1), 0.7),
], False)
sketch14.addConstraint([
    Sketcher.Constraint("Equal", 0, 1),
    Sketcher.Constraint("Equal", 2, 3),
    Sketcher.Constraint("Symmetric", 0, 3, 2, 3, -1),
    Sketcher.Constraint("Symmetric", 1, 3, 3, 3, -1),
    Sketcher.Constraint("Horizontal", 1, 3, 2, 3),
    Sketcher.Constraint("Diameter", 2, 1.3),
    Sketcher.Constraint("Diameter", 0, 2.45),
    Sketcher.Constraint("DistanceX", 1, 3, 0, 3, 12.5),
    Sketcher.Constraint("DistanceY", 1, 3, 0, 3, 12.5),
    Sketcher.Constraint("DistanceX", -1, 1, 0, 3, 13.35),
])
pocket5 = body.newObject("PartDesign::Pocket", "Pocket004")
pocket5.Profile = sketch14
pocket5.Length = 5

sketch15 = body.newObject("Sketcher::SketchObject", "Sketch014")
sketch15.AttachmentSupport = (doc.getObject("YZ_Plane"), [""])
sketch15.MapMode = "FlatFace"
sketch15.AttachmentOffset = App.Placement(App.Vector(0, 0, 33.289967), App.Rotation())
sketch15.addGeometry([
    Part.Circle(App.Vector(13.3, -6.2, 0), App.Vector(0, 0, 1), 1.2),
    Part.Circle(App.Vector(0.8, 6.2, 0), App.Vector(0, 0, 1), 1.2),
], False)
sketch15.addConstraint([
    Sketcher.Constraint("Equal", 0, 1),
    Sketcher.Constraint("Diameter", 0, 2.4),
    Sketcher.Constraint("DistanceX", 1, 3, 0, 3, 12.5),
    Sketcher.Constraint("DistanceY", 0, 3, 1, 3, 12.5),
    Sketcher.Constraint("DistanceX", -1, 1, 0, 3, 13.35),
    Sketcher.Constraint("DistanceY", 0, 3, -1, 1, 6.25),
])
pocket6 = body.newObject("PartDesign::Pocket", "Pocket005")
pocket6.Profile = sketch15
pocket6.Length = 1.3
pocket6.Reversed = True

doc.recompute()
